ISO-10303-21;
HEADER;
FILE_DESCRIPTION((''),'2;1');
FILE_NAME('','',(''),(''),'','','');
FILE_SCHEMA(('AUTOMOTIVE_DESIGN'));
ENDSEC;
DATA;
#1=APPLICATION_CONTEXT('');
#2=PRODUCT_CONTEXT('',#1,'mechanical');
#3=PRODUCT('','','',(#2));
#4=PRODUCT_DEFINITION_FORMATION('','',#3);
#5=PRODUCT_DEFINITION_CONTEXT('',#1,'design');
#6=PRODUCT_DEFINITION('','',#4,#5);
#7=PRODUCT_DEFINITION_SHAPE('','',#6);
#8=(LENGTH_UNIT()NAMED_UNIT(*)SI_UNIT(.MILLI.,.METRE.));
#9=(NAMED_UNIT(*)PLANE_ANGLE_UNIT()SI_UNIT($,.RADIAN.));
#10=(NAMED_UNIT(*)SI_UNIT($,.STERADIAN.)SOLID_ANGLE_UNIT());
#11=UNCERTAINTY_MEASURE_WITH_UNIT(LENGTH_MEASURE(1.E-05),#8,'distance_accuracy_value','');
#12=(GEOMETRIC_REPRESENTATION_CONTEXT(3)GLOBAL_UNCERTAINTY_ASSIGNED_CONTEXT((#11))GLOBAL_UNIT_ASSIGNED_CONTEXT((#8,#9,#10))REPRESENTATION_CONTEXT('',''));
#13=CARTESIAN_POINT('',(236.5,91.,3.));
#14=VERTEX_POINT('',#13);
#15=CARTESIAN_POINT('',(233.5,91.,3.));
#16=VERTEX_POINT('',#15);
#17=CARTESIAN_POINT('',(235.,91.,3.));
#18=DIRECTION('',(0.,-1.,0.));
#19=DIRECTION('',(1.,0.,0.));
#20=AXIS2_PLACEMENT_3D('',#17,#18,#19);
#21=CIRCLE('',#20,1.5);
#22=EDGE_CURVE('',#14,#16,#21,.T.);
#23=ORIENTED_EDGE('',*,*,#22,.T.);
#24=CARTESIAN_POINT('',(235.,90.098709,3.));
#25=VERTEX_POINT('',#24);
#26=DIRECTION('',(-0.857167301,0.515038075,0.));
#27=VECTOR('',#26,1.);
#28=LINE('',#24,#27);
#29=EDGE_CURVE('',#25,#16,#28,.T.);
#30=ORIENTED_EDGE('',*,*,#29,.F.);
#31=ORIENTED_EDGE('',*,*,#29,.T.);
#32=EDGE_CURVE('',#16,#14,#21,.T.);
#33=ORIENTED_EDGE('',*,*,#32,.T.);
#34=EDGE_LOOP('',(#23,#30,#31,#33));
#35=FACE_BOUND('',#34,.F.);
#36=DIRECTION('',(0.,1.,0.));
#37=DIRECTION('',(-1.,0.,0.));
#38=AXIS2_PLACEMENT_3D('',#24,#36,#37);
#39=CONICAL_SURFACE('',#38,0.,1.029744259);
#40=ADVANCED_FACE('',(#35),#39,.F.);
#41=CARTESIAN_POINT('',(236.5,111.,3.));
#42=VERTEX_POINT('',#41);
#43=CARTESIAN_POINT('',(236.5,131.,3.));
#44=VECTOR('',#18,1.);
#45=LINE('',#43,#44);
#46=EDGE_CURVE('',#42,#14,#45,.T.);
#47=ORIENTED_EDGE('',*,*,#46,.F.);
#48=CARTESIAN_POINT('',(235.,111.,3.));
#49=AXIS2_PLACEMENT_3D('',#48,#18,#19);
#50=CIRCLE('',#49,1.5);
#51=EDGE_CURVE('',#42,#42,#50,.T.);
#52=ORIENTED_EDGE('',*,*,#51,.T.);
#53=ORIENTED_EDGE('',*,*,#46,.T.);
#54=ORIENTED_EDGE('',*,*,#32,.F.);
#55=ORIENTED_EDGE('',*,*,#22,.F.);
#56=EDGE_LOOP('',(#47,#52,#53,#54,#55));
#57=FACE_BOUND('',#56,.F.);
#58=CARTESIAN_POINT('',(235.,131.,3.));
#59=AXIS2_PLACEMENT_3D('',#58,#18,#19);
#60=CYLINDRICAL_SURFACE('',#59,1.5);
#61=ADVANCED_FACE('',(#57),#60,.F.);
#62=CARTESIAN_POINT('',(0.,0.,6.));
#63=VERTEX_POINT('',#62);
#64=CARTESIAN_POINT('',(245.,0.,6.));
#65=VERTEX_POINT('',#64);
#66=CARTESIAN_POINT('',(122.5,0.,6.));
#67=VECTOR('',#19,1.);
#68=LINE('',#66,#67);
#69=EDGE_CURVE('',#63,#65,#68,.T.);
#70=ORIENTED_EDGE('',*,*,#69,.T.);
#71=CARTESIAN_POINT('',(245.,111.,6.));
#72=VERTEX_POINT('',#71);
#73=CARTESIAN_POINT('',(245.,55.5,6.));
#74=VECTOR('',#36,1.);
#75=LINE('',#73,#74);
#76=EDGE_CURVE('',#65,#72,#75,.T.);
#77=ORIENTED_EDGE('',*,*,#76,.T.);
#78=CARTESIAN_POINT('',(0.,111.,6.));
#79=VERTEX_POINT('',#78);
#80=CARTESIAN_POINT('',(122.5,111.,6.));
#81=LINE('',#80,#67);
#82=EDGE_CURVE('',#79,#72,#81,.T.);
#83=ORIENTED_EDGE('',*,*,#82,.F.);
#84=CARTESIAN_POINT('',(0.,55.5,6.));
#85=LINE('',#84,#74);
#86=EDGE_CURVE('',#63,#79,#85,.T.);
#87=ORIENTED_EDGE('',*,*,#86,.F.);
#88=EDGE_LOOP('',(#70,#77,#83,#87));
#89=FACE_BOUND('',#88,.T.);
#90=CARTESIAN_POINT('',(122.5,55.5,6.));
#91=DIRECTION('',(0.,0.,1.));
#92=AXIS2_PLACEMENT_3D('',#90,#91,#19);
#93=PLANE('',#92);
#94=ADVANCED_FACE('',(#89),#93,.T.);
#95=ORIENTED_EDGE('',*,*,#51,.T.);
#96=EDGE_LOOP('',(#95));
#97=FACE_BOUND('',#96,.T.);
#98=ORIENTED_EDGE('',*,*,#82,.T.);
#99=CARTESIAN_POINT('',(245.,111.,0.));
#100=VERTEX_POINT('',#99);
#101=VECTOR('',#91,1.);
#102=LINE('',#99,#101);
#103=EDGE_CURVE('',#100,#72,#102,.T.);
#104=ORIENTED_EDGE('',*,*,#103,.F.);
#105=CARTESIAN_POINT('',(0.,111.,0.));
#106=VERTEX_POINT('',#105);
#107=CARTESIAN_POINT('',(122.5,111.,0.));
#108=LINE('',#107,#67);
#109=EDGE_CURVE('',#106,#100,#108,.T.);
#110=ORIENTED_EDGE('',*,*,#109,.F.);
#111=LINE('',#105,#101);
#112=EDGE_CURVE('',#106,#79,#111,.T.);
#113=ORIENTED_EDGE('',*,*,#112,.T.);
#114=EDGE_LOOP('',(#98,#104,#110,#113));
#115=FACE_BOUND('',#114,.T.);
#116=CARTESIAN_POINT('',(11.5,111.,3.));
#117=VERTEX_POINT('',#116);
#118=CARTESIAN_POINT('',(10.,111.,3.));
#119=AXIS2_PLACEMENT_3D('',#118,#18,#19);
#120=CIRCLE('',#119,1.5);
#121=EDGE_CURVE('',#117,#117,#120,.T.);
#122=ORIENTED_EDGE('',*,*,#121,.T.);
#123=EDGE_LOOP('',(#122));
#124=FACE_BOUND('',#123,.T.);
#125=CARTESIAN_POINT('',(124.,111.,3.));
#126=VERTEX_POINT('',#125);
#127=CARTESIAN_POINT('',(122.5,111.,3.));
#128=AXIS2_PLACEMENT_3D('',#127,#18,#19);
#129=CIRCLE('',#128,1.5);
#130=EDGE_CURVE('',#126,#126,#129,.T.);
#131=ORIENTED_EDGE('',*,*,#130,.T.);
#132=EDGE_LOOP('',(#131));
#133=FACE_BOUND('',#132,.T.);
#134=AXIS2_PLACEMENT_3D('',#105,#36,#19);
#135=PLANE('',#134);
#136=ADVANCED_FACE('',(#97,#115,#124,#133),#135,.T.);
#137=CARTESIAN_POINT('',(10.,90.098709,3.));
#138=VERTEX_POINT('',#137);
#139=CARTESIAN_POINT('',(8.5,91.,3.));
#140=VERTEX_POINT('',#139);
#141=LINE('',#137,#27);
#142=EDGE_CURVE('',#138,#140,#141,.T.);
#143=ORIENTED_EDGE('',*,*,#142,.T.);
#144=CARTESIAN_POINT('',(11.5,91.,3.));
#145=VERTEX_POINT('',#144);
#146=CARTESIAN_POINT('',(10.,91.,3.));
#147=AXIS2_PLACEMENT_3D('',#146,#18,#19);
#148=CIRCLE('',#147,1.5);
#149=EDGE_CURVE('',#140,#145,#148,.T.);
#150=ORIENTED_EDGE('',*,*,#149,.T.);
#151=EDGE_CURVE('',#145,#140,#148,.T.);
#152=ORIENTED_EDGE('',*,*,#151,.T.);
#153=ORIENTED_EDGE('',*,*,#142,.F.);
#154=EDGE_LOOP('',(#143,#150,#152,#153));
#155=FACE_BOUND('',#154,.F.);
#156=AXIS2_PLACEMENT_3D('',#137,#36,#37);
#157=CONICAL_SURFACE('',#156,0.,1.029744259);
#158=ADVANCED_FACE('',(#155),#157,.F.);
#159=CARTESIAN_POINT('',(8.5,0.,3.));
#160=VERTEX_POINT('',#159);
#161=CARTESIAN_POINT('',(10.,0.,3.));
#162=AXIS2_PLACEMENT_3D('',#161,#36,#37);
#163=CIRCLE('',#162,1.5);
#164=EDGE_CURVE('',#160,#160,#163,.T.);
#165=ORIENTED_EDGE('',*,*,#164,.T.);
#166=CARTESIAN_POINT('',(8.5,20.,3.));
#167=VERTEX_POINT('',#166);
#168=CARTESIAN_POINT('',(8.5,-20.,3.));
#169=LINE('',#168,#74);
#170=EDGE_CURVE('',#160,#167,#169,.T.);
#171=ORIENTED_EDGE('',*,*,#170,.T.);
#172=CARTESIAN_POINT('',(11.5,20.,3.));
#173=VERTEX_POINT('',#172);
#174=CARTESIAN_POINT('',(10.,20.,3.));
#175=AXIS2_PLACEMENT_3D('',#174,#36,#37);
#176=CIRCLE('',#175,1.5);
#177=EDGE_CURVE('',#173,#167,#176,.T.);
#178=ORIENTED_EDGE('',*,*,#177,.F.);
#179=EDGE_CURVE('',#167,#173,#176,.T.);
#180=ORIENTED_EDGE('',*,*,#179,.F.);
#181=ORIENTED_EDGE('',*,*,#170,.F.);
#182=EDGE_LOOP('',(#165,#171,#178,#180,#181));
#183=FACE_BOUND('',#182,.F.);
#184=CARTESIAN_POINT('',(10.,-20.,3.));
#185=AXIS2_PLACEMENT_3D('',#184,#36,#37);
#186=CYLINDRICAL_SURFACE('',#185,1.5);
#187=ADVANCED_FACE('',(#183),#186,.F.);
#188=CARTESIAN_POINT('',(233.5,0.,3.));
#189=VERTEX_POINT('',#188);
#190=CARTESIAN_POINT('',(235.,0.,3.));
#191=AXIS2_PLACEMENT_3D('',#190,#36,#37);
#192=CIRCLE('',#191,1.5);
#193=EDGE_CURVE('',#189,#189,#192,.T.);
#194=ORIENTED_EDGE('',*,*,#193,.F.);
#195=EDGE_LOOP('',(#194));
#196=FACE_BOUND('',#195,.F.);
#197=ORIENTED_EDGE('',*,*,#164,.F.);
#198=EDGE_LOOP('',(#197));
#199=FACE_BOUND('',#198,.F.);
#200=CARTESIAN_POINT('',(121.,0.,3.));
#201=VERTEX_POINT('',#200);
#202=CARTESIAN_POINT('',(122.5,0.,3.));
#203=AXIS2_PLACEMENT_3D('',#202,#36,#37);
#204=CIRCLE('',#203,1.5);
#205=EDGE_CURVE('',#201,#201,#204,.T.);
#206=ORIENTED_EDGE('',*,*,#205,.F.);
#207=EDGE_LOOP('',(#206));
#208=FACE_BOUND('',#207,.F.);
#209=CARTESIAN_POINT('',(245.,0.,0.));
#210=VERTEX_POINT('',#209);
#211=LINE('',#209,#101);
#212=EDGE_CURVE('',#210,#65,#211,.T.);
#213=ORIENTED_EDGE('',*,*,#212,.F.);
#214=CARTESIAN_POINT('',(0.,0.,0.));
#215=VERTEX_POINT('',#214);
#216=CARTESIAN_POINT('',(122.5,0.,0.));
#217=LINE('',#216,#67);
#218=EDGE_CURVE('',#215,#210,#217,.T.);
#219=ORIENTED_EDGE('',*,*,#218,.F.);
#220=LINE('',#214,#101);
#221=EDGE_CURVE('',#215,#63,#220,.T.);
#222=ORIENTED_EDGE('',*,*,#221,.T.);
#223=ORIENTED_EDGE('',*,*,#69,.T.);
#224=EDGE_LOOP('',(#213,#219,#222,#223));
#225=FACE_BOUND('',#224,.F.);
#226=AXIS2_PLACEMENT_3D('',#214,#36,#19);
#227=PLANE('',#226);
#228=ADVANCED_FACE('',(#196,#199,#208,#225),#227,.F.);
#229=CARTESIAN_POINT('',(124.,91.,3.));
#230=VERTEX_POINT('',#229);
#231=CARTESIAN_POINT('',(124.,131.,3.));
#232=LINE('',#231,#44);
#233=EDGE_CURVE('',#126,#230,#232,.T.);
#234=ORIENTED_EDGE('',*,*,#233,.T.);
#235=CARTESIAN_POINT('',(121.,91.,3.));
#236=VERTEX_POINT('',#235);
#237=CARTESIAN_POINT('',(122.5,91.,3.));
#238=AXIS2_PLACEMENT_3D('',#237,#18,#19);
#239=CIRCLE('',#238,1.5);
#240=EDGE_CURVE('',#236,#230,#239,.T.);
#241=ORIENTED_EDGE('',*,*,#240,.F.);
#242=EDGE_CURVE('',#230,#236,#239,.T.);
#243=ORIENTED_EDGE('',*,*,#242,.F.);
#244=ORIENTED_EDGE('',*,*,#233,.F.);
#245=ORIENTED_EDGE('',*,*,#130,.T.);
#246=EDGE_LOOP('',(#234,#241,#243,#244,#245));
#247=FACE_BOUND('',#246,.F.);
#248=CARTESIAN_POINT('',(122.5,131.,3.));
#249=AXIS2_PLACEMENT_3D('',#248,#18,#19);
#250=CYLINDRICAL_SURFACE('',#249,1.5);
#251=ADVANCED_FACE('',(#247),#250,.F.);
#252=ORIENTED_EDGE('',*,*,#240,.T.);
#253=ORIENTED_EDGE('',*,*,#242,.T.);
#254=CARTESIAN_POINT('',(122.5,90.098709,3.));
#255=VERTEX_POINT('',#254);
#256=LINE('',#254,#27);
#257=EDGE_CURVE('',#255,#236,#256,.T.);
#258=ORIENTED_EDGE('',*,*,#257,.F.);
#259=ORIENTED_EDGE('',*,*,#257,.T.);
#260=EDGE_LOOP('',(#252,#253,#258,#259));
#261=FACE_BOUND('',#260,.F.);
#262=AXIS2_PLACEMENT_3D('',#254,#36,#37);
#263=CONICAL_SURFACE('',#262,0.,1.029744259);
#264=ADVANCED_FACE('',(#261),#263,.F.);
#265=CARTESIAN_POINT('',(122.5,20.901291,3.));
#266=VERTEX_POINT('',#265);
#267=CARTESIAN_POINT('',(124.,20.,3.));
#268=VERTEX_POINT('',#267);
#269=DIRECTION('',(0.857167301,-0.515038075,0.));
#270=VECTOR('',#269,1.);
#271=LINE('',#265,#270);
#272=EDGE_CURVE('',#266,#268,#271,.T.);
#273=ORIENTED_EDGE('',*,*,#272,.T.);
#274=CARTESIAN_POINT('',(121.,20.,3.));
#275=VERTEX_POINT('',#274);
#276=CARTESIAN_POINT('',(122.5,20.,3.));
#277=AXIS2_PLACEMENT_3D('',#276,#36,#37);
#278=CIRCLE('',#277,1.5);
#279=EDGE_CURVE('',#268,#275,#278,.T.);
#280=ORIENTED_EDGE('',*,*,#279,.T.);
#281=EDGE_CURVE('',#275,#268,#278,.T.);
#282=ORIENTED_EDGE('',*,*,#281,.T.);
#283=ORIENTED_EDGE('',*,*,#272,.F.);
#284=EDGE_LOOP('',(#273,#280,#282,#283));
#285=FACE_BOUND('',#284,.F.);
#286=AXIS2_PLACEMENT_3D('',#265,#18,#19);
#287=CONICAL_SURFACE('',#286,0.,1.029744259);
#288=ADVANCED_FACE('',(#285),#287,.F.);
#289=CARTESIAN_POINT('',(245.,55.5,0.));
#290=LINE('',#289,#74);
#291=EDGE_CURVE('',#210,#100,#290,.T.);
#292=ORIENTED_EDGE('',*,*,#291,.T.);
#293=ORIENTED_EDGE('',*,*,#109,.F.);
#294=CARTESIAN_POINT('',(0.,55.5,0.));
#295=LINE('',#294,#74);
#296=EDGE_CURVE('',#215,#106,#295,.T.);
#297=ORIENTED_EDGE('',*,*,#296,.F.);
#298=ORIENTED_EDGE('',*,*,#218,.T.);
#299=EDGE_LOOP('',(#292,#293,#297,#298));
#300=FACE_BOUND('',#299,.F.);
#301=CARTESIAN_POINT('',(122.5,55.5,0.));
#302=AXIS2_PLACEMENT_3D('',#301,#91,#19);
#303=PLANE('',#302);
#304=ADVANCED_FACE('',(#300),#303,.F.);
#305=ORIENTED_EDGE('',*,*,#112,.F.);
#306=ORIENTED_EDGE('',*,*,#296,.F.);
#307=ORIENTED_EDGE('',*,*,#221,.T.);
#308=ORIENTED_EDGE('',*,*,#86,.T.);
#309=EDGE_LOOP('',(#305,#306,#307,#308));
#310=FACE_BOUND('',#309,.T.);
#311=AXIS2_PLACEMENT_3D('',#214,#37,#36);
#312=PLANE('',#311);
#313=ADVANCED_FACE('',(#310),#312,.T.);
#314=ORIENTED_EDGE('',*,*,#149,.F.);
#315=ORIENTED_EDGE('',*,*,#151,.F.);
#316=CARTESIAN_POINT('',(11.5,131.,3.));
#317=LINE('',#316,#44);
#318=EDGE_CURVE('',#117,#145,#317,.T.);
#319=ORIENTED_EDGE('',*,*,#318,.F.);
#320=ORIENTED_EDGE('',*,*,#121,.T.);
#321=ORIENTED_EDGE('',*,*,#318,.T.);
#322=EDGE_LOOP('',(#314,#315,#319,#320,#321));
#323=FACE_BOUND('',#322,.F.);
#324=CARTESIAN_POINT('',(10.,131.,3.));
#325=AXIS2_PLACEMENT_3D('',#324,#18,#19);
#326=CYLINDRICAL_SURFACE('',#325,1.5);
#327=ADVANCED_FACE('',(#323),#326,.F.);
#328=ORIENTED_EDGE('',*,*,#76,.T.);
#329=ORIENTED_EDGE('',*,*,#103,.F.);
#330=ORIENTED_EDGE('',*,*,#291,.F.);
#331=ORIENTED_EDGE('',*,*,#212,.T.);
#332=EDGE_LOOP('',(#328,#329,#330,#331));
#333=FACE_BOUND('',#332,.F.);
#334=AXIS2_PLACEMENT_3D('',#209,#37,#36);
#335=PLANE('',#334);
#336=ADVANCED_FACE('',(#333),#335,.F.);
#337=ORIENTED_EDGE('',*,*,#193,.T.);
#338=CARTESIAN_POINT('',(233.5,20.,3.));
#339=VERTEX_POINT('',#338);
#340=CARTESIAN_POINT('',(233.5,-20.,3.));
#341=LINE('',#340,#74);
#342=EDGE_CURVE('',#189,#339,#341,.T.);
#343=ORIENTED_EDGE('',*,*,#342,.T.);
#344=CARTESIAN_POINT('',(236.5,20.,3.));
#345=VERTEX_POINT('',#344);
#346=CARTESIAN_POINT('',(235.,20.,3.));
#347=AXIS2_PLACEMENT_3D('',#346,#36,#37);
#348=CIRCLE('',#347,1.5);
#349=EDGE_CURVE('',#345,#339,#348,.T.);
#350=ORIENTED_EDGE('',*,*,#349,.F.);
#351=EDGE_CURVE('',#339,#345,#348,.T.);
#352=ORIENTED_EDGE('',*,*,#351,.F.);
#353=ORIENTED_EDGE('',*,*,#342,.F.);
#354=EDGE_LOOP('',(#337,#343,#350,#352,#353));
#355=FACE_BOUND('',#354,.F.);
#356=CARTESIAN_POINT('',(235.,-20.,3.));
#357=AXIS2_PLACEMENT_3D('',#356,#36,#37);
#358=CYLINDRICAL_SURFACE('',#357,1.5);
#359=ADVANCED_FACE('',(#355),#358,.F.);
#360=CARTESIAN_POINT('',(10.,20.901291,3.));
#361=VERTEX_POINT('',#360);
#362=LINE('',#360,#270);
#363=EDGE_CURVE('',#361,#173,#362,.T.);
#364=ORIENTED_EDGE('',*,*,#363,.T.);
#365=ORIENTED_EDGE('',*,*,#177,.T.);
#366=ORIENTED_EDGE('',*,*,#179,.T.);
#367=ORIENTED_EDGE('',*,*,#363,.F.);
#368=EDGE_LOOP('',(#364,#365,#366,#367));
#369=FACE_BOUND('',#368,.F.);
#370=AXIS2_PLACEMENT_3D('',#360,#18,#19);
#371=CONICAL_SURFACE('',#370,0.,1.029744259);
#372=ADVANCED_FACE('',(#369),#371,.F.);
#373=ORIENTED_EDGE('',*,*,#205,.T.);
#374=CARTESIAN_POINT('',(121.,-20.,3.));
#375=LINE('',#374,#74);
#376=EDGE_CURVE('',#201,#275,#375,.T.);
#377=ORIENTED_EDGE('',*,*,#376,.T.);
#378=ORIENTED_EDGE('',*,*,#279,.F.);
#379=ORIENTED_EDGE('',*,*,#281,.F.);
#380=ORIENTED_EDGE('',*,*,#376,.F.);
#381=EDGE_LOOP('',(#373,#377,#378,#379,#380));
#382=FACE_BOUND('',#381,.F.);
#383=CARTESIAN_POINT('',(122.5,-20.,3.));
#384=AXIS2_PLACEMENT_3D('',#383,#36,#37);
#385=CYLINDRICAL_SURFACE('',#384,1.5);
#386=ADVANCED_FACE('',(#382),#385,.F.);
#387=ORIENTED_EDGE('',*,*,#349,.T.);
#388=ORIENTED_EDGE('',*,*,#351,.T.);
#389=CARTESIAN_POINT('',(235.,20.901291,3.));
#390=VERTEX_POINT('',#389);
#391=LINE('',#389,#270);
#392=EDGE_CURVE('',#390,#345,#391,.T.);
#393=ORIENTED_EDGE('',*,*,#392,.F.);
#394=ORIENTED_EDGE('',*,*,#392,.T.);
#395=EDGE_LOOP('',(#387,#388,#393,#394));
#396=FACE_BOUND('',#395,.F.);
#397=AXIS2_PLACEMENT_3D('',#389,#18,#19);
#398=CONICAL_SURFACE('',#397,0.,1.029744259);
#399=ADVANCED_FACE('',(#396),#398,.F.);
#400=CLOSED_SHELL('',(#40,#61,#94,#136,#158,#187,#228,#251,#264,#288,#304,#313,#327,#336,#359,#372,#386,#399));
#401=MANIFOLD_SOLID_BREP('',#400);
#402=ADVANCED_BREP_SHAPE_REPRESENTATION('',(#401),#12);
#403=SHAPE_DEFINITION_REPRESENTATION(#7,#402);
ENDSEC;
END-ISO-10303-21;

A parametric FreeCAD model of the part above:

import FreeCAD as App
import Part
import Sketcher

V = App.Vector

doc = App.newDocument("Part")
params = doc.addObject("Spreadsheet::Sheet", "Params")
for row, (alias, value) in enumerate([
    ("sketch1_width", "245 mm"),
    ("sketch1_height", "111 mm"),
    ("pad1_length", "6 mm"),
    ("sketch2_diameter", "3 mm"),
    ("hole_diameter", "3 mm"),
    ("hole_depth", "20 mm"),
    ("sketch3_diameter", "3 mm"),
    ("hole2_diameter", "3 mm"),
    ("hole2_depth", "20 mm"),
], start=1):
    params.set(f"A{row}", alias)
    params.set(f"B{row}", "=" + value)
    params.setAlias(f"B{row}", alias)

body = doc.addObject("PartDesign::Body", "Body")

# Sketch on XY plane
sketch1 = body.newObject("Sketcher::SketchObject", "Sketch")
sketch1.AttachmentSupport = (doc.getObject("XY_Plane"), [""])
sketch1.MapMode = "FlatFace"
sketch1.addGeometry(Part.LineSegment(V(0, 111, 0), V(0, 0, 0)), False)
sketch1.addGeometry(Part.LineSegment(V(0, 0, 0), V(245, 0, 0)), False)
sketch1.addGeometry(Part.LineSegment(V(245, 0, 0), V(245, 111, 0)), False)
sketch1.addGeometry(Part.LineSegment(V(245, 111, 0), V(0, 111, 0)), False)
sketch1.addConstraint(Sketcher.Constraint("Coincident", 0, 2, 1, 1))
sketch1.addConstraint(Sketcher.Constraint("Coincident", 1, 2, 2, 1))
sketch1.addConstraint(Sketcher.Constraint("Coincident", 2, 2, 3, 1))
sketch1.addConstraint(Sketcher.Constraint("Coincident", 3, 2, 0, 1))
sketch1.addConstraint(Sketcher.Constraint("Vertical", 0))
sketch1.addConstraint(Sketcher.Constraint("Horizontal", 1))
sketch1.addConstraint(Sketcher.Constraint("Vertical", 2))
sketch1.addConstraint(Sketcher.Constraint("Horizontal", 3))
sketch1.addConstraint(Sketcher.Constraint("Coincident", 0, 2, -1, 1))
sketch1.addConstraint(Sketcher.Constraint("DistanceX", 1, 1, 1, 2, 245.0))
sketch1.addConstraint(Sketcher.Constraint("DistanceY", 0, 2, 0, 1, 111.0))
sketch1.setExpression("Constraints[9]", "Params.sketch1_width")
sketch1.setExpression("Constraints[10]", "Params.sketch1_height")
pad1 = body.newObject("PartDesign::Pad", "Pad")
pad1.Profile = sketch1
pad1.setExpression("Length", "Params.pad1_length")

# Sketch on XZ plane
sketch2 = body.newObject("Sketcher::SketchObject", "Sketch001")
sketch2.AttachmentSupport = (doc.getObject("XZ_Plane"), [""])
sketch2.MapMode = "FlatFace"
sketch2.addGeometry(Part.Circle(V(10, 3, 0), V(0, 0, 1), 1.5), False)
sketch2.addGeometry(Part.Circle(V(122.5, 3, 0), V(0, 0, 1), 1.5), False)
sketch2.addGeometry(Part.Circle(V(235, 3, 0), V(0, 0, 1), 1.5), False)
sketch2.addConstraint(Sketcher.Constraint("Equal", 0, 1))
sketch2.addConstraint(Sketcher.Constraint("Equal", 1, 2))
sketch2.addConstraint(Sketcher.Constraint("Horizontal", 0, 3, 1, 3))
sketch2.addConstraint(Sketcher.Constraint("Horizontal", 1, 3, 2, 3))
sketch2.addConstraint(Sketcher.Constraint("Diameter", 0, 3.0))
sketch2.addConstraint(Sketcher.Constraint("DistanceX", -1, 1, 0, 3, 10.0))
sketch2.addConstraint(Sketcher.Constraint("DistanceY", -1, 1, 0, 3, 3.0))
sketch2.addConstraint(Sketcher.Constraint("DistanceX", -1, 1, 2, 3, 235.0))
sketch2.addConstraint(Sketcher.Constraint("DistanceX", -1, 1, 1, 3, 122.5))
sketch2.setExpression("Constraints[4]", "Params.sketch2_diameter")
doc.recompute()
hole = body.newObject("PartDesign::Hole", "Hole")
hole.Profile = sketch2
hole.ThreadType = "None"
hole.setExpression("Diameter", "Params.hole_diameter")
hole.DepthType = "Dimension"
hole.setExpression("Depth", "Params.hole_depth")
hole.DrillPoint = "Angled"
hole.DrillPointAngle = 118

# Sketch on XZ plane
sketch3 = body.newObject("Sketcher::SketchObject", "Sketch002")
sketch3.AttachmentSupport = (doc.getObject("XZ_Plane"), [""])
sketch3.MapMode = "FlatFace"
sketch3.AttachmentOffset = App.Placement(V(0, 0, -111), App.Rotation())
sketch3.addGeometry(Part.Circle(V(235, 3, 0), V(0, 0, 1), 1.5), False)
sketch3.addGeometry(Part.Circle(V(122.5, 3, 0), V(0, 0, 1), 1.5), False)
sketch3.addGeometry(Part.Circle(V(10, 3, 0), V(0, 0, 1), 1.5), False)
sketch3.addConstraint(Sketcher.Constraint("Equal", 0, 1))
sketch3.addConstraint(Sketcher.Constraint("Equal", 1, 2))
sketch3.addConstraint(Sketcher.Constraint("Horizontal", 0, 3, 1, 3))
sketch3.addConstraint(Sketcher.Constraint("Horizontal", 1, 3, 2, 3))
sketch3.addConstraint(Sketcher.Constraint("Diameter", 0, 3.0))
sketch3.addConstraint(Sketcher.Constraint("DistanceX", -1, 1, 0, 3, 235.0))
sketch3.addConstraint(Sketcher.Constraint("DistanceY", -1, 1, 0, 3, 3.0))
sketch3.addConstraint(Sketcher.Constraint("DistanceX", -1, 1, 2, 3, 10.0))
sketch3.addConstraint(Sketcher.Constraint("DistanceX", -1, 1, 1, 3, 122.5))
sketch3.setExpression("Constraints[4]", "Params.sketch3_diameter")
doc.recompute()
hole2 = body.newObject("PartDesign::Hole", "Hole001")
hole2.Profile = sketch3
hole2.ThreadType = "None"
hole2.setExpression("Diameter", "Params.hole2_diameter")
hole2.DepthType = "Dimension"
hole2.setExpression("Depth", "Params.hole2_depth")
hole2.DrillPoint = "Angled"
hole2.DrillPointAngle = 118
hole2.Reversed = True

doc.recompute()
